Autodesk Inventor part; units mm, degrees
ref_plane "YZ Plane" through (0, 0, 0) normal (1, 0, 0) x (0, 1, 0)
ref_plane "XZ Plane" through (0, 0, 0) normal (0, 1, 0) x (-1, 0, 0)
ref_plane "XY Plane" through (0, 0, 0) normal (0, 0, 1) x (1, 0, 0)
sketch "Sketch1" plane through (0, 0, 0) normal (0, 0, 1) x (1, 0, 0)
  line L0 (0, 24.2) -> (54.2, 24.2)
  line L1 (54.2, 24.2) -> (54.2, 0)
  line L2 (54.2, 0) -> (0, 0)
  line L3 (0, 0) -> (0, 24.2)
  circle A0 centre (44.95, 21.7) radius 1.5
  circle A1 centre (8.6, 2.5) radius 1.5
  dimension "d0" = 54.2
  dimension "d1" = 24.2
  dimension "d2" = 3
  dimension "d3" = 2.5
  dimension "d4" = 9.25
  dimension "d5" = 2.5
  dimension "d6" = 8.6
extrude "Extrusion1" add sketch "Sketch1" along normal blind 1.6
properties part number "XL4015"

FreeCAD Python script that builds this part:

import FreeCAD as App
import Part
import Sketcher
from FreeCAD import Vector

doc = App.newDocument("Part")
params = doc.addObject("Spreadsheet::Sheet", "Params")
for row, (alias, value) in enumerate([
    ("sketch1_diameter", "3 mm"),
    ("sketch1_width", "54.2 mm"),
    ("sketch1_height", "24.2 mm"),
    ("pad1_length", "1.6 mm"),
], start=1):
    params.set(f"A{row}", alias)
    params.set(f"B{row}", "=" + value)
    params.setAlias(f"B{row}", alias)

body = doc.addObject("PartDesign::Body", "Body")

# Sketch on XY plane
sketch1 = body.newObject("Sketcher::SketchObject", "Sketch")
sketch1.AttachmentSupport = (doc.getObject("XY_Plane"), [""])
sketch1.MapMode = "FlatFace"
sketch1.addGeometry(Part.LineSegment(Vector(54.2, 24.2, 0), Vector(0, 24.2, 0)), False)
sketch1.addGeometry(Part.LineSegment(Vector(0, 24.2, 0), Vector(0, 0, 0)), False)
sketch1.addGeometry(Part.LineSegment(Vector(0, 0, 0), Vector(54.2, 0, 0)), False)
sketch1.addGeometry(Part.LineSegment(Vector(54.2, 0, 0), Vector(54.2, 24.2, 0)), False)
sketch1.addGeometry(Part.Circle(Vector(8.6, 2.5, 0), Vector(0, 0, 1), 1.5), False)
sketch1.addGeometry(Part.Circle(Vector(45, 21.7, 0), Vector(0, 0, 1), 1.5), False)
sketch1.addConstraint(Sketcher.Constraint("Coincident", 0, 2, 1, 1))
sketch1.addConstraint(Sketcher.Constraint("Coincident", 1, 2, 2, 1))
sketch1.addConstraint(Sketcher.Constraint("Coincident", 2, 2, 3, 1))
sketch1.addConstraint(Sketcher.Constraint("Coincident", 3, 2, 0, 1))
sketch1.addConstraint(Sketcher.Constraint("Horizontal", 0))
sketch1.addConstraint(Sketcher.Constraint("Vertical", 1))
sketch1.addConstraint(Sketcher.Constraint("Horizontal", 2))
sketch1.addConstraint(Sketcher.Constraint("Vertical", 3))
sketch1.addConstraint(Sketcher.Constraint("Coincident", 1, 2, -1, 1))
sketch1.addConstraint(Sketcher.Constraint("Equal", 4, 5))
sketch1.addConstraint(Sketcher.Constraint("Diameter", 4, 3.0))
sketch1.addConstraint(Sketcher.Constraint("DistanceX", 0, 2, 0, 1, 54.2))
sketch1.addConstraint(Sketcher.Constraint("DistanceY", 1, 2, 1, 1, 24.2))
sketch1.addConstraint(Sketcher.Constraint("DistanceX", -1, 1, 4, 3, 8.6))
sketch1.addConstraint(Sketcher.Constraint("DistanceY", -1, 1, 4, 3, 2.5))
sketch1.addConstraint(Sketcher.Constraint("DistanceY", 5, 3, 0, 2, 2.5))
sketch1.addConstraint(Sketcher.Constraint("DistanceX", 5, 3, 2, 2, 9.25))
sketch1.setExpression("Constraints[10]", "Params.sketch1_diameter")
sketch1.setExpression("Constraints[11]", "Params.sketch1_width")
sketch1.setExpression("Constraints[12]", "Params.sketch1_height")
pad1 = body.newObject("PartDesign::Pad", "Pad")
pad1.Profile = sketch1
pad1.setExpression("Length", "Params.pad1_length")

doc.recompute()
